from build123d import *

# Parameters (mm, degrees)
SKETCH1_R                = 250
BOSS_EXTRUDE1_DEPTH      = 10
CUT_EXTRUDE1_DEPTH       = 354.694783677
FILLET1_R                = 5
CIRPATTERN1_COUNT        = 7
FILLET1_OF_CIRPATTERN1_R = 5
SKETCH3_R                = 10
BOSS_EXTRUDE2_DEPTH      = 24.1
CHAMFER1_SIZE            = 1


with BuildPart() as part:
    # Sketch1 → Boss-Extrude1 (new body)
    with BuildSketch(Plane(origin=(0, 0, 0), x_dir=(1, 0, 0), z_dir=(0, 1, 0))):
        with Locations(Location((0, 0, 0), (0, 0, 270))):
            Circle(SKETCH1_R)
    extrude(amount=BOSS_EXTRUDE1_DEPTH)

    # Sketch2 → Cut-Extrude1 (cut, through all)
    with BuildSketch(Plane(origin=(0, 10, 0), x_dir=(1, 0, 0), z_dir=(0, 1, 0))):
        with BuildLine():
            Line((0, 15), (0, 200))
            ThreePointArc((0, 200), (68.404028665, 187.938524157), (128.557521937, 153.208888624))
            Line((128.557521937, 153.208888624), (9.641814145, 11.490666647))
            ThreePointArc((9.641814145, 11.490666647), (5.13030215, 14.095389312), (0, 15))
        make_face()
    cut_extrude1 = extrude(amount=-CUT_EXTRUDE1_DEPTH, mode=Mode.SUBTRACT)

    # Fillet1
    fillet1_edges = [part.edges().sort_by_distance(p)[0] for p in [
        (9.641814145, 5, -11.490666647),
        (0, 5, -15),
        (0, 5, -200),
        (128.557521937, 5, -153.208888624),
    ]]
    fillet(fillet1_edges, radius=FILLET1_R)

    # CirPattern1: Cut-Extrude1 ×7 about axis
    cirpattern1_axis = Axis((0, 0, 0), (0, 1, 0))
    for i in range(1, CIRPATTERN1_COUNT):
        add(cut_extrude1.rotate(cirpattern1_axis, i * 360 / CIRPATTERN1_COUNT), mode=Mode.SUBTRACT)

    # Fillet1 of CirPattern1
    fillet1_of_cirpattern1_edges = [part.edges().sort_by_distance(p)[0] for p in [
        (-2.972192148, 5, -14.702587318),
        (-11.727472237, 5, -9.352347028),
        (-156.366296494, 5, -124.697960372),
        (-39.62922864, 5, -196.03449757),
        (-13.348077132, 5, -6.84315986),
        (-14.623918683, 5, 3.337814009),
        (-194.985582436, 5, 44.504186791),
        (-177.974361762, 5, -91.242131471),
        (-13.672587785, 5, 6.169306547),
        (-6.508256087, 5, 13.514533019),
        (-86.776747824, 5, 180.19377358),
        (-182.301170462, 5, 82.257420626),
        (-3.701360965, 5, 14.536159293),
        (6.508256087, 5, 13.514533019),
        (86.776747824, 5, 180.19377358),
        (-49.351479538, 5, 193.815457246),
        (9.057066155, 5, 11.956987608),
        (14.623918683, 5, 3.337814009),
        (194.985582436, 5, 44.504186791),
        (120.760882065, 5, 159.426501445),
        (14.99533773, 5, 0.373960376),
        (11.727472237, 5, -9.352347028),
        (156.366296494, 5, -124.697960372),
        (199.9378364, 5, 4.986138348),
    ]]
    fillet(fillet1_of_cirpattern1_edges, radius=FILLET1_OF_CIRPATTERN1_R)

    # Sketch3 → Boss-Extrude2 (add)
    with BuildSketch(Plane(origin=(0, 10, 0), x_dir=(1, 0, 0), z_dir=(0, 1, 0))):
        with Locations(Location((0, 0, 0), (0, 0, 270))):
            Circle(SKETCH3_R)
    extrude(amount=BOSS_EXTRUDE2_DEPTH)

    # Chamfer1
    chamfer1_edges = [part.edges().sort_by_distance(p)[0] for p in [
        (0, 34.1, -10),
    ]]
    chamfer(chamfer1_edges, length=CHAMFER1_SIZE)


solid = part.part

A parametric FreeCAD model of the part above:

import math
import FreeCAD as App
import Part
import Sketcher
Q = App.Units.Quantity


def edges_at(feature, points):
    """Names of the edges that pass closest to the given points."""
    edges = feature.Shape.Edges
    near = lambda p: min(range(len(edges)), key=lambda i: edges[i].distToShape(Part.Vertex(*p))[0])
    return sorted({f"Edge{near(p) + 1}" for p in points})

doc = App.newDocument("Part")
params = doc.addObject("Spreadsheet::Sheet", "Params")
for row, (alias, value) in enumerate([
    ("sketch1_diameter", "500 mm"),
    ("pad1_length", "10 mm"),
    ("sketch2_radius", "15 mm"),
    ("sketch2_radius2", "200 mm"),
    ("fillet_radius", "5 mm"),
    ("fillet2_radius", "5 mm"),
    ("sketch3_diameter", "20 mm"),
    ("pad2_length", "24.1 mm"),
    ("chamfer_size", "1 mm"),
], start=1):
    params.set(f"A{row}", alias)
    params.set(f"B{row}", "=" + value)
    params.setAlias(f"B{row}", alias)

body = doc.addObject("PartDesign::Body", "Body")

# Sketch on XZ plane
sketch1 = body.newObject("Sketcher::SketchObject", "Sketch")
sketch1.AttachmentSupport = (doc.getObject("XZ_Plane"), [""])
sketch1.MapMode = "FlatFace"
sketch1.addGeometry(Part.Circle(App.Vector(0, 0, 0), App.Vector(0, 0, 1), 250), False)
sketch1.addConstraint([
    Sketcher.Constraint("Coincident", 0, 3, -1, 1),
    Sketcher.Constraint("Diameter", 0, 500.0),
])
sketch1.setExpression("Constraints[1]", "Params.sketch1_diameter")
pad1 = body.newObject("PartDesign::Pad", "Pad")
pad1.Profile = sketch1
pad1.setExpression("Length", "Params.pad1_length")
pad1.Reversed = True

# Sketch on XZ plane
sketch2 = body.newObject("Sketcher::SketchObject", "Sketch001")
sketch2.AttachmentSupport = (doc.getObject("XZ_Plane"), [""])
sketch2.MapMode = "FlatFace"
sketch2.AttachmentOffset = App.Placement(App.Vector(0, 0, -10), App.Rotation())
sketch2.addGeometry([
    Part.LineSegment(App.Vector(0, -200, 0), App.Vector(0, -15, 0)),
    Part.ArcOfCircle(Part.Circle(App.Vector(0, 0, 0), App.Vector(0, 0, 1), 15), math.radians(-90), math.radians(-50)),
    Part.LineSegment(App.Vector(10, -11, 0), App.Vector(129, -153, 0)),
    Part.ArcOfCircle(Part.Circle(App.Vector(0, 0, 0), App.Vector(0, 0, 1), 200), math.radians(-90), math.radians(-50)),
], False)
sketch2.addConstraint([
    Sketcher.Constraint("Coincident", 0, 2, 1, 1),
    Sketcher.Constraint("Coincident", 1, 2, 2, 1),
    Sketcher.Constraint("Coincident", 2, 2, 3, 2),
    Sketcher.Constraint("Coincident", 3, 1, 0, 1),
    Sketcher.Constraint("Vertical", 0),
    Sketcher.Constraint("Coincident", 1, 3, -1, 1),
    Sketcher.Constraint("Coincident", 3, 3, -1, 1),
    Sketcher.Constraint("PointOnObject", 0, 2, -2),
    Sketcher.Constraint("Radius", 1, 15.0),
    Sketcher.Constraint("Radius", 3, 200.0),
    Sketcher.Constraint("Angle", 2, Q("-50 deg")),
    Sketcher.Constraint("DistanceX", -1, 1, 2, 2, 128.557522),
])
sketch2.setExpression("Constraints[8]", "Params.sketch2_radius")
sketch2.setExpression("Constraints[9]", "Params.sketch2_radius2")
pocket1 = body.newObject("PartDesign::Pocket", "Pocket")
pocket1.Profile = sketch2
pocket1.Type = "ThroughAll"
pocket1.Reversed = True
doc.recompute()

fillet = body.newObject("PartDesign::Fillet", "Fillet")
fillet.Base = (pocket1, edges_at(pocket1, [
    (9.642, 5, -11.491),
    (0, 5, -15),
    (0, 5, -200),
    (128.558, 5, -153.209),
]))
fillet.setExpression("Radius", "Params.fillet_radius")
doc.recompute()

polarpattern = body.newObject("PartDesign::PolarPattern", "PolarPattern")
polarpattern.Originals = [pocket1]
polarpattern.Axis = (doc.getObject("Y_Axis"), [""])
polarpattern.Angle = 360
polarpattern.Occurrences = 7
body.Tip = polarpattern
doc.recompute()

fillet2 = body.newObject("PartDesign::Fillet", "Fillet001")
fillet2.Base = (polarpattern, edges_at(polarpattern, [
    (-2.972, 5, -14.703),
    (-11.727, 5, -9.352),
    (-156.366, 5, -124.698),
    (-39.629, 5, -196.034),
    (-13.348, 5, -6.843),
    (-14.624, 5, 3.338),
    (-194.986, 5, 44.504),
    (-177.974, 5, -91.242),
    (-13.673, 5, 6.169),
    (-6.508, 5, 13.515),
    (-86.777, 5, 180.194),
    (-182.301, 5, 82.257),
    (-3.701, 5, 14.536),
    (6.508, 5, 13.515),
    (86.777, 5, 180.194),
    (-49.351, 5, 193.815),
    (9.057, 5, 11.957),
    (14.624, 5, 3.338),
    (194.986, 5, 44.504),
    (120.761, 5, 159.427),
    (14.995, 5, 0.374),
    (11.727, 5, -9.352),
    (156.366, 5, -124.698),
    (199.938, 5, 4.986),
]))
fillet2.setExpression("Radius", "Params.fillet2_radius")

# Sketch on XZ plane
sketch3 = body.newObject("Sketcher::SketchObject", "Sketch002")
sketch3.AttachmentSupport = (doc.getObject("XZ_Plane"), [""])
sketch3.MapMode = "FlatFace"
sketch3.AttachmentOffset = App.Placement(App.Vector(0, 0, -10), App.Rotation())
sketch3.addGeometry(Part.Circle(App.Vector(0, 0, 0), App.Vector(0, 0, 1), 10), False)
sketch3.addConstraint([
    Sketcher.Constraint("Coincident", 0, 3, -1, 1),
    Sketcher.Constraint("Diameter", 0, 20.0),
])
sketch3.setExpression("Constraints[1]", "Params.sketch3_diameter")
pad2 = body.newObject("PartDesign::Pad", "Pad001")
pad2.Profile = sketch3
pad2.setExpression("Length", "Params.pad2_length")
pad2.Reversed = True
doc.recompute()

chamfer = body.newObject("PartDesign::Chamfer", "Chamfer")
chamfer.Base = (pad2, edges_at(pad2, [(0, 34.1, -10)]))
chamfer.setExpression("Size", "Params.chamfer_size")

doc.recompute()
